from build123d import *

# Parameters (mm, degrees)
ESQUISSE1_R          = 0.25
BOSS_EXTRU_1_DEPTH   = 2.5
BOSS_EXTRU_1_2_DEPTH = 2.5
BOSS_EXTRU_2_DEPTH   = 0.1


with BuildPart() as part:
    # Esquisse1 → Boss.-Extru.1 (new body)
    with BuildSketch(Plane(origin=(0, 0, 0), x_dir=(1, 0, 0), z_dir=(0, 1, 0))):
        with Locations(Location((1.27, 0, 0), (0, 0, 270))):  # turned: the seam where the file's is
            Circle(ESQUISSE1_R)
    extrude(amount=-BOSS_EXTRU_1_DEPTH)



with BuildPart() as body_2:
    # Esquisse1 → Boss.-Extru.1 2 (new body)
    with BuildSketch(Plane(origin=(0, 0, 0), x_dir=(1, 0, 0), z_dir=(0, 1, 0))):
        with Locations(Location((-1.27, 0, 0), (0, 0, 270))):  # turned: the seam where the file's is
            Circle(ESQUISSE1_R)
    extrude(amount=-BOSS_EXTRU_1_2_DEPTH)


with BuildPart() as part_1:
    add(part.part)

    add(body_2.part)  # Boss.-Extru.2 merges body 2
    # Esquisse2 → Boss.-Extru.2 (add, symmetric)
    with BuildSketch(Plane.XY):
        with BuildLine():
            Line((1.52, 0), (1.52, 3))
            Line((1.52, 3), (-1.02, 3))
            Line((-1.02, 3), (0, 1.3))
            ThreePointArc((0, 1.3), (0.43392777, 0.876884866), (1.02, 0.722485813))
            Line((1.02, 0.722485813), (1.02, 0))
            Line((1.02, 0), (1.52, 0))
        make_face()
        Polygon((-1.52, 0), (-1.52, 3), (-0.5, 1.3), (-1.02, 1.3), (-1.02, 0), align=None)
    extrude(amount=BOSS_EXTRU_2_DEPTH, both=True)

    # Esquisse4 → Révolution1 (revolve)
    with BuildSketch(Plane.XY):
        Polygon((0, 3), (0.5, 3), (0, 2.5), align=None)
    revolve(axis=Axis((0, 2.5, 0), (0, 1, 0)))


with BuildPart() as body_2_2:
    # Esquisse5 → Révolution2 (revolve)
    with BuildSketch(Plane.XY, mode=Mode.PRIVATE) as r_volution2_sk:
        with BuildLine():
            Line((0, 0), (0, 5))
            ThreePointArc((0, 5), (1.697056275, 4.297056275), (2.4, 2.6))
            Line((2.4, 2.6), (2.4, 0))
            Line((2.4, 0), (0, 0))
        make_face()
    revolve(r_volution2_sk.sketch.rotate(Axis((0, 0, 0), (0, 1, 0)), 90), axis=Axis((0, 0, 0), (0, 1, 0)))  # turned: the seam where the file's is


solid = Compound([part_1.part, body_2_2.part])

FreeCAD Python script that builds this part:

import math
import FreeCAD as App
import Part
import Sketcher

V = App.Vector
Q = App.Units.Quantity


def add_polygon(sketch, points):
    """Adds a closed chain of lines whose ends are joined by coincident constraints."""
    first, n = sketch.GeometryCount, len(points)
    for a, b in zip(points, points[1:] + points[:1]):
        sketch.addGeometry(Part.LineSegment(App.Vector(*a, 0), App.Vector(*b, 0)), False)
    for i in range(n):
        sketch.addConstraint(Sketcher.Constraint("Coincident", first + i, 2, first + (i + 1) % n, 1))

doc = App.newDocument("Part")
body = doc.addObject("PartDesign::Body", "Body")

# Sketch on XZ plane
sketch1 = body.newObject("Sketcher::SketchObject", "Sketch")
sketch1.AttachmentSupport = (doc.getObject("XZ_Plane"), [""])
sketch1.MapMode = "FlatFace"
sketch1.addGeometry(Part.Circle(V(1.27, 0, 0), V(0, 0, 1), 0.25), False)
sketch1.addConstraint(Sketcher.Constraint("PointOnObject", 0, 3, -1))
sketch1.addConstraint(Sketcher.Constraint("Diameter", 0, Q("0.5 mm")))
sketch1.addConstraint(Sketcher.Constraint("DistanceX", -1, 1, 0, 3, Q("1.27 mm")))
pad1 = body.newObject("PartDesign::Pad", "Pad")
pad1.Profile = sketch1
pad1.Length = 2.5
body2 = doc.addObject("PartDesign::Body", "Body001")

# Sketch on XZ plane
sketch2 = body2.newObject("Sketcher::SketchObject", "Sketch001")
sketch2.AttachmentSupport = (doc.getObject("XZ_Plane001"), [""])
sketch2.MapMode = "FlatFace"
sketch2.addGeometry(Part.Circle(V(-1.27, 0, 0), V(0, 0, 1), 0.25), False)
sketch2.addConstraint(Sketcher.Constraint("PointOnObject", 0, 3, -1))
sketch2.addConstraint(Sketcher.Constraint("Diameter", 0, Q("0.5 mm")))
sketch2.addConstraint(Sketcher.Constraint("DistanceX", 0, 3, -1, 1, Q("1.27 mm")))
pad2 = body2.newObject("PartDesign::Pad", "Pad001")
pad2.Profile = sketch2
pad2.Length = 2.5
body.AllowCompound = True
doc.recompute()

boolean = body.newObject("PartDesign::Boolean", "Boolean")
boolean.Type = "Fuse"
boolean.addObjects([body2])

# Sketch on XY plane
sketch3 = body.newObject("Sketcher::SketchObject", "Sketch002")
sketch3.AttachmentSupport = (doc.getObject("XY_Plane"), [""])
sketch3.MapMode = "FlatFace"
sketch3.addGeometry(Part.LineSegment(V(1.5, 0, 0), V(1.5, 3, 0)), False)  # 0
sketch3.addGeometry(Part.LineSegment(V(1.5, 3, 0), V(-1, 3, 0)), False)  # 1
sketch3.addGeometry(Part.LineSegment(V(-1, 3, 0), V(0, 1.3, 0)), False)  # 2
sketch3.addGeometry(Part.ArcOfCircle(Part.Circle(V(1, 1.9, 0), V(0, 0, 1), 1.2), math.radians(-149), math.radians(-90)), False)  # 3
sketch3.addGeometry(Part.LineSegment(V(1, 0.7, 0), V(1, 0, 0)), False)  # 4
sketch3.addGeometry(Part.LineSegment(V(1, 0, 0), V(1.5, 0, 0)), False)  # 5
add_polygon(sketch3, [(-1.5, 3), (-1.5, 0), (-1, 0), (-1, 1.3), (-0.5, 1.3)])  # lines 6-10
sketch3.addConstraint(Sketcher.Constraint("Coincident", 0, 2, 1, 1))
sketch3.addConstraint(Sketcher.Constraint("Coincident", 1, 2, 2, 1))
sketch3.addConstraint(Sketcher.Constraint("Tangent", 2, 2, 3, 1))
sketch3.addConstraint(Sketcher.Constraint("Coincident", 3, 2, 4, 1))
sketch3.addConstraint(Sketcher.Constraint("Coincident", 4, 2, 5, 1))
sketch3.addConstraint(Sketcher.Constraint("Coincident", 5, 2, 0, 1))
sketch3.addConstraint(Sketcher.Constraint("Vertical", 0))
sketch3.addConstraint(Sketcher.Constraint("Horizontal", 1))
sketch3.addConstraint(Sketcher.Constraint("Vertical", 4))
sketch3.addConstraint(Sketcher.Constraint("Horizontal", 5))
sketch3.addConstraint(Sketcher.Constraint("Vertical", 6))
sketch3.addConstraint(Sketcher.Constraint("Horizontal", 7))
sketch3.addConstraint(Sketcher.Constraint("Vertical", 8))
sketch3.addConstraint(Sketcher.Constraint("Horizontal", 9))
sketch3.addConstraint(Sketcher.Constraint("Symmetric", 5, 2, 6, 2, -1, 1))
sketch3.addConstraint(Sketcher.Constraint("Symmetric", 4, 2, 7, 2, -2))
sketch3.addConstraint(Sketcher.Constraint("PointOnObject", 2, 2, -2))
sketch3.addConstraint(Sketcher.Constraint("Parallel", 2, 10))
sketch3.addConstraint(Sketcher.Constraint("Horizontal", 2, 2, 8, 2))
sketch3.addConstraint(Sketcher.Constraint("Horizontal", 1, 2, 10, 2))
sketch3.addConstraint(Sketcher.Constraint("Vertical", 1, 2, 7, 2))
sketch3.addConstraint(Sketcher.Constraint("DistanceY", 0, 1, 0, 2, Q("3 mm")))
sketch3.addConstraint(Sketcher.Constraint("DistanceX", 5, 1, 5, 2, Q("0.5 mm")))
sketch3.addConstraint(Sketcher.Constraint("DistanceY", 8, 1, 8, 2, Q("1.3 mm")))
sketch3.addConstraint(Sketcher.Constraint("DistanceX", 1, 2, 1, 1, Q("2.54 mm")))
sketch3.addConstraint(Sketcher.Constraint("DistanceX", 3, 3, 0, 2, Q("0.5 mm")))
pad3 = body.newObject("PartDesign::Pad", "Pad002")
pad3.Profile = sketch3
pad3.Length = 0.2
pad3.Midplane = True

# Sketch on XY plane
sketch4 = body.newObject("Sketcher::SketchObject", "Sketch003")
sketch4.AttachmentSupport = (doc.getObject("XY_Plane"), [""])
sketch4.MapMode = "FlatFace"
add_polygon(sketch4, [(0.5, 3), (0, 3), (0, 2.5)])  # lines 0-2
sketch4.addConstraint(Sketcher.Constraint("Horizontal", 0))
sketch4.addConstraint(Sketcher.Constraint("Vertical", 1))
sketch4.addConstraint(Sketcher.Constraint("PointOnObject", 0, 2, -2))
sketch4.addConstraint(Sketcher.Constraint("Equal", 0, 1))
sketch4.addConstraint(Sketcher.Constraint("DistanceX", 0, 2, 0, 1, Q("0.5 mm")))
sketch4.addConstraint(Sketcher.Constraint("DistanceY", -1, 1, 0, 2, Q("3 mm")))
revolution = body.newObject("PartDesign::Revolution", "Revolution")
revolution.Profile = sketch4
revolution.ReferenceAxis = (sketch4, ["V_Axis"])
revolution.Angle = 360
body3 = doc.addObject("PartDesign::Body", "Body002")

# Sketch on XY plane
sketch5 = body3.newObject("Sketcher::SketchObject", "Sketch004")
sketch5.AttachmentSupport = (doc.getObject("XY_Plane002"), [""])
sketch5.MapMode = "FlatFace"
sketch5.addGeometry(Part.LineSegment(V(0, 5, 0), V(0, 0, 0)), False)
sketch5.addGeometry(Part.LineSegment(V(0, 0, 0), V(2.4, 0, 0)), False)
sketch5.addGeometry(Part.LineSegment(V(2.4, 0, 0), V(2.4, 2.6, 0)), False)
sketch5.addGeometry(Part.ArcOfCircle(Part.Circle(V(0, 2.6, 0), V(0, 0, 1), 2.4), math.radians(0), math.radians(90)), False)
sketch5.addConstraint(Sketcher.Constraint("Coincident", 0, 2, 1, 1))
sketch5.addConstraint(Sketcher.Constraint("Coincident", 1, 2, 2, 1))
sketch5.addConstraint(Sketcher.Constraint("Tangent", 2, 2, 3, 1))
sketch5.addConstraint(Sketcher.Constraint("Coincident", 3, 2, 0, 1))
sketch5.addConstraint(Sketcher.Constraint("Vertical", 0))
sketch5.addConstraint(Sketcher.Constraint("Horizontal", 1))
sketch5.addConstraint(Sketcher.Constraint("Vertical", 2))
sketch5.addConstraint(Sketcher.Constraint("Coincident", 0, 2, -1, 1))
sketch5.addConstraint(Sketcher.Constraint("PointOnObject", 3, 3, -2))
sketch5.addConstraint(Sketcher.Constraint("Radius", 3, Q("2.4 mm")))
sketch5.addConstraint(Sketcher.Constraint("DistanceY", 0, 2, 0, 1, Q("5 mm")))
revolution2 = body3.newObject("PartDesign::Revolution", "Revolution001")
revolution2.Profile = sketch5
revolution2.ReferenceAxis = (sketch5, ["V_Axis"])
revolution2.Angle = 360

doc.recompute()
